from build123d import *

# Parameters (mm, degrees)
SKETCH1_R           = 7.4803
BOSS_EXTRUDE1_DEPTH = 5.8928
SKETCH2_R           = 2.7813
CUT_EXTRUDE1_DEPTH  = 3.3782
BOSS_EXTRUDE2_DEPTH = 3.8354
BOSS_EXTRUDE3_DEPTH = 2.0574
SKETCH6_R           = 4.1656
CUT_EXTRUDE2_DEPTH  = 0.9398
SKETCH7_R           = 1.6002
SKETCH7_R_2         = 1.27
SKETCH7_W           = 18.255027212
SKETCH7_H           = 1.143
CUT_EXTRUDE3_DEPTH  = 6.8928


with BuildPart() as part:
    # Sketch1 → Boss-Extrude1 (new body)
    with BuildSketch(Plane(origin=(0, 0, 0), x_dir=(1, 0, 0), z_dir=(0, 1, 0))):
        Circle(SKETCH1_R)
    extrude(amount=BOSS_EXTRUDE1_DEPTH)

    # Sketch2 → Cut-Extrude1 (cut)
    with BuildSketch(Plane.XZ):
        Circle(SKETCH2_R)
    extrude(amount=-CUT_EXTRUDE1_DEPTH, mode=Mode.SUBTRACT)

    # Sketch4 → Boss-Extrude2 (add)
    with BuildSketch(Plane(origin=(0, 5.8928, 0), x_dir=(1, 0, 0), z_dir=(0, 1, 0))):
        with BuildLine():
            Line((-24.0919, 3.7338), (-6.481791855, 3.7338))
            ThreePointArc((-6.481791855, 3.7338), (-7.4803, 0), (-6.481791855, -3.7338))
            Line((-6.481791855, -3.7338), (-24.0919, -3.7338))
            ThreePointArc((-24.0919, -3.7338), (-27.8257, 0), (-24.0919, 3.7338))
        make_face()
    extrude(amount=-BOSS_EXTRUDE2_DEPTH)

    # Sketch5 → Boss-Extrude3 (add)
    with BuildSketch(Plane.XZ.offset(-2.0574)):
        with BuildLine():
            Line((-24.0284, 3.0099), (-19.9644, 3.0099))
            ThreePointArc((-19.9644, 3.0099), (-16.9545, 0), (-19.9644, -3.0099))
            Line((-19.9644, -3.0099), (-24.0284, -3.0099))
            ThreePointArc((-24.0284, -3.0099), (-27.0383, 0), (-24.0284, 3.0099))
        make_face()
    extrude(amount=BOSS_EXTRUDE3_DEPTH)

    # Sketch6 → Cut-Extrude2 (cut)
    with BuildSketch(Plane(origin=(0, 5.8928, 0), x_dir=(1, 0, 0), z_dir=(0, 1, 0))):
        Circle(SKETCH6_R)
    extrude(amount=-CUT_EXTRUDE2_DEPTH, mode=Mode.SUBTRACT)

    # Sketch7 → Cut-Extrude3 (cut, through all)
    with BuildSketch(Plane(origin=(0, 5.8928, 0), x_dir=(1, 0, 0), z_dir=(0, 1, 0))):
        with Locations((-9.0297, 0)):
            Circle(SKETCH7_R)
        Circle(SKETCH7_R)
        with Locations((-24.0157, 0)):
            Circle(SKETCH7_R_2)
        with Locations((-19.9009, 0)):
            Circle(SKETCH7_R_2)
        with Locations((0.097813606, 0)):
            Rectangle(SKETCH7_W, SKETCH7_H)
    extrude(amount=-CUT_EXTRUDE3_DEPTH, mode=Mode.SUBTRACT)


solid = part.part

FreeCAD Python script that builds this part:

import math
import FreeCAD as App
import Part
import Sketcher
from FreeCAD import Vector
Q = App.Units.Quantity

doc = App.newDocument("Part")
body = doc.addObject("PartDesign::Body", "Body")

sketch1 = body.newObject("Sketcher::SketchObject", "Sketch")
sketch1.AttachmentSupport = (doc.getObject("XZ_Plane"), [""])
sketch1.MapMode = "FlatFace"
sketch1.addGeometry(Part.Circle(Vector(0, 0, 0), Vector(0, 0, 1), 7), False)
sketch1.addConstraint(Sketcher.Constraint("Coincident", 0, 3, -1, 1))
sketch1.addConstraint(Sketcher.Constraint("Diameter", 0, Q("0.589 in")))
pad1 = body.newObject("PartDesign::Pad", "Pad")
pad1.Profile = sketch1
pad1.Length = Q("0.232 in")
pad1.Reversed = True

sketch2 = body.newObject("Sketcher::SketchObject", "Sketch001")
sketch2.AttachmentSupport = (doc.getObject("XZ_Plane"), [""])
sketch2.MapMode = "FlatFace"
sketch2.addGeometry(Part.Circle(Vector(0, 0, 0), Vector(0, 0, 1), 2.8), False)
sketch2.addConstraint(Sketcher.Constraint("Coincident", 0, 3, -1, 1))
sketch2.addConstraint(Sketcher.Constraint("Diameter", 0, Q("0.219 in")))
pocket1 = body.newObject("PartDesign::Pocket", "Pocket")
pocket1.Profile = sketch2
pocket1.Length = Q("0.133 in")

sketch3 = body.newObject("Sketcher::SketchObject", "Sketch002")
sketch3.AttachmentSupport = (doc.getObject("XZ_Plane"), [""])
sketch3.MapMode = "FlatFace"
sketch3.AttachmentOffset = App.Placement(Vector(0, 0, -0.232 * 25.4), App.Rotation())
sketch3.addGeometry(Part.LineSegment(Vector(-6.5, -3.7, 0), Vector(-24.1, -3.7, 0)), False)
sketch3.addGeometry(Part.ArcOfCircle(Part.Circle(Vector(-24.1, 0, 0), Vector(0, 0, 1), 3.7), math.radians(90), math.radians(270)), False)
sketch3.addGeometry(Part.LineSegment(Vector(-24.1, 3.7, 0), Vector(-6.5, 3.7, 0)), False)
sketch3.addGeometry(Part.ArcOfCircle(Part.Circle(Vector(0, 0, 0), Vector(0, 0, 1), 7.5), math.radians(150), math.radians(210)), False)
sketch3.addConstraint(Sketcher.Constraint("Tangent", 0, 2, 1, 2))
sketch3.addConstraint(Sketcher.Constraint("Tangent", 1, 1, 2, 1))
sketch3.addConstraint(Sketcher.Constraint("Coincident", 2, 2, 3, 1))
sketch3.addConstraint(Sketcher.Constraint("Coincident", 3, 2, 0, 1))
sketch3.addConstraint(Sketcher.Constraint("Horizontal", 0))
sketch3.addConstraint(Sketcher.Constraint("Horizontal", 2))
sketch3.addConstraint(Sketcher.Constraint("Coincident", 3, 3, -1, 1))
sketch3.addConstraint(Sketcher.Constraint("PointOnObject", 1, 3, -1))
sketch3.addConstraint(Sketcher.Constraint("Radius", 1, Q("0.147 in")))
sketch3.addConstraint(Sketcher.Constraint("Radius", 3, Q("0.2945 in")))
sketch3.addConstraint(Sketcher.Constraint("DistanceX", 1, 3, -1, 1, Q("0.9485 in")))
pad2 = body.newObject("PartDesign::Pad", "Pad001")
pad2.Profile = sketch3
pad2.Length = Q("0.151 in")

sketch4 = body.newObject("Sketcher::SketchObject", "Sketch003")
sketch4.AttachmentSupport = (doc.getObject("XZ_Plane"), [""])
sketch4.MapMode = "FlatFace"
sketch4.AttachmentOffset = App.Placement(Vector(0, 0, -0.081 * 25.4), App.Rotation())
sketch4.addGeometry(Part.LineSegment(Vector(-20, 3, 0), Vector(-24, 3, 0)), False)
sketch4.addGeometry(Part.ArcOfCircle(Part.Circle(Vector(-24, 0, 0), Vector(0, 0, 1), 3), math.radians(90), math.radians(270)), False)
sketch4.addGeometry(Part.LineSegment(Vector(-24, -3, 0), Vector(-20, -3, 0)), False)
sketch4.addGeometry(Part.ArcOfCircle(Part.Circle(Vector(-20, 0, 0), Vector(0, 0, 1), 3), math.radians(-90), math.radians(90)), False)
sketch4.addConstraint(Sketcher.Constraint("Tangent", 0, 2, 1, 1))
sketch4.addConstraint(Sketcher.Constraint("Tangent", 1, 2, 2, 1))
sketch4.addConstraint(Sketcher.Constraint("Tangent", 2, 2, 3, 1))
sketch4.addConstraint(Sketcher.Constraint("Tangent", 3, 2, 0, 1))
sketch4.addConstraint(Sketcher.Constraint("Horizontal", 0))
sketch4.addConstraint(Sketcher.Constraint("Horizontal", 2))
sketch4.addConstraint(Sketcher.Constraint("PointOnObject", 1, 3, -1))
sketch4.addConstraint(Sketcher.Constraint("DistanceX", 0, 2, 0, 1, Q("0.16 in")))
sketch4.addConstraint(Sketcher.Constraint("Radius", 1, Q("0.1185 in")))
sketch4.addConstraint(Sketcher.Constraint("DistanceX", 1, 3, -1, 1, Q("0.946 in")))
pad3 = body.newObject("PartDesign::Pad", "Pad002")
pad3.Profile = sketch4
pad3.Length = Q("0.081 in")

sketch5 = body.newObject("Sketcher::SketchObject", "Sketch004")
sketch5.AttachmentSupport = (doc.getObject("XZ_Plane"), [""])
sketch5.MapMode = "FlatFace"
sketch5.AttachmentOffset = App.Placement(Vector(0, 0, -0.232 * 25.4), App.Rotation())
sketch5.addGeometry(Part.Circle(Vector(0, 0, 0), Vector(0, 0, 1), 4.2), False)
sketch5.addConstraint(Sketcher.Constraint("Coincident", 0, 3, -1, 1))
sketch5.addConstraint(Sketcher.Constraint("Diameter", 0, Q("0.328 in")))
pocket2 = body.newObject("PartDesign::Pocket", "Pocket001")
pocket2.Profile = sketch5
pocket2.Length = Q("0.037 in")
pocket2.Reversed = True

sketch6 = body.newObject("Sketcher::SketchObject", "Sketch005")
sketch6.AttachmentSupport = (doc.getObject("XZ_Plane"), [""])
sketch6.MapMode = "FlatFace"
sketch6.AttachmentOffset = App.Placement(Vector(0, 0, -0.232 * 25.4), App.Rotation())
sketch6.addGeometry(Part.LineSegment(Vector(-7.5, 0.6, 0), Vector(-1.5, 0.6, 0)), False)
sketch6.addGeometry(Part.ArcOfCircle(Part.Circle(Vector(0, 0, 0), Vector(0, 0, 1), 1.6), math.radians(21), math.radians(159)), False)
sketch6.addGeometry(Part.LineSegment(Vector(1.5, 0.6, 0), Vector(9.2, 0.6, 0)), False)
sketch6.addGeometry(Part.LineSegment(Vector(9.2, 0.6, 0), Vector(9.2, -0.6, 0)), False)
sketch6.addGeometry(Part.LineSegment(Vector(9.2, -0.6, 0), Vector(1.5, -0.6, 0)), False)
sketch6.addGeometry(Part.ArcOfCircle(Part.Circle(Vector(0, 0, 0), Vector(0, 0, 1), 1.6), math.radians(-159), math.radians(-21)), False)
sketch6.addGeometry(Part.LineSegment(Vector(-1.5, -0.6, 0), Vector(-7.5, -0.6, 0)), False)
sketch6.addGeometry(Part.ArcOfCircle(Part.Circle(Vector(-9, 0, 0), Vector(0, 0, 1), 1.6), math.radians(21), math.radians(339)), False)
sketch6.addGeometry(Part.Circle(Vector(-24, 0, 0), Vector(0, 0, 1), 1.3), False)
sketch6.addGeometry(Part.Circle(Vector(-19.9, 0, 0), Vector(0, 0, 1), 1.3), False)
sketch6.addConstraint(Sketcher.Constraint("Coincident", 0, 2, 1, 2))
sketch6.addConstraint(Sketcher.Constraint("Coincident", 1, 1, 2, 1))
sketch6.addConstraint(Sketcher.Constraint("Coincident", 2, 2, 3, 1))
sketch6.addConstraint(Sketcher.Constraint("Coincident", 3, 2, 4, 1))
sketch6.addConstraint(Sketcher.Constraint("Coincident", 4, 2, 5, 2))
sketch6.addConstraint(Sketcher.Constraint("Coincident", 5, 1, 6, 1))
sketch6.addConstraint(Sketcher.Constraint("Coincident", 6, 2, 7, 2))
sketch6.addConstraint(Sketcher.Constraint("Coincident", 7, 1, 0, 1))
sketch6.addConstraint(Sketcher.Constraint("Horizontal", 0))
sketch6.addConstraint(Sketcher.Constraint("Horizontal", 2))
sketch6.addConstraint(Sketcher.Constraint("Vertical", 3))
sketch6.addConstraint(Sketcher.Constraint("Horizontal", 4))
sketch6.addConstraint(Sketcher.Constraint("Horizontal", 6))
sketch6.addConstraint(Sketcher.Constraint("Coincident", 1, 3, -1, 1))
sketch6.addConstraint(Sketcher.Constraint("Coincident", 5, 3, -1, 1))
sketch6.addConstraint(Sketcher.Constraint("Equal", 1, 5))
sketch6.addConstraint(Sketcher.Constraint("Equal", 5, 7))
sketch6.addConstraint(Sketcher.Constraint("Equal", 8, 9))
sketch6.addConstraint(Sketcher.Constraint("Symmetric", 6, 2, 7, 1, -1))
sketch6.addConstraint(Sketcher.Constraint("PointOnObject", 8, 3, -1))
sketch6.addConstraint(Sketcher.Constraint("PointOnObject", 9, 3, -1))
sketch6.addConstraint(Sketcher.Constraint("Horizontal", 0, 2, 1, 1))
sketch6.addConstraint(Sketcher.Constraint("Horizontal", 4, 2, 5, 1))
sketch6.addConstraint(Sketcher.Constraint("Diameter", 8, Q("0.1 in")))
sketch6.addConstraint(Sketcher.Constraint("Radius", 1, Q("0.063 in")))
sketch6.addConstraint(Sketcher.Constraint("DistanceY", 3, 2, 3, 1, Q("0.045 in")))
sketch6.addConstraint(Sketcher.Constraint("DistanceX", 8, 3, 7, 3, Q("0.59 in")))
sketch6.addConstraint(Sketcher.Constraint("DistanceX", 8, 3, 9, 3, Q("0.162 in")))
sketch6.addConstraint(Sketcher.Constraint("DistanceX", 7, 3, -1, 1, Q("0.3555 in")))
sketch6.addConstraint(Sketcher.Constraint("DistanceX", 2, 1, 2, 2, 7.730661))
pocket3 = body.newObject("PartDesign::Pocket", "Pocket002")
pocket3.Profile = sketch6
pocket3.Type = "ThroughAll"
pocket3.Reversed = True

doc.recompute()
